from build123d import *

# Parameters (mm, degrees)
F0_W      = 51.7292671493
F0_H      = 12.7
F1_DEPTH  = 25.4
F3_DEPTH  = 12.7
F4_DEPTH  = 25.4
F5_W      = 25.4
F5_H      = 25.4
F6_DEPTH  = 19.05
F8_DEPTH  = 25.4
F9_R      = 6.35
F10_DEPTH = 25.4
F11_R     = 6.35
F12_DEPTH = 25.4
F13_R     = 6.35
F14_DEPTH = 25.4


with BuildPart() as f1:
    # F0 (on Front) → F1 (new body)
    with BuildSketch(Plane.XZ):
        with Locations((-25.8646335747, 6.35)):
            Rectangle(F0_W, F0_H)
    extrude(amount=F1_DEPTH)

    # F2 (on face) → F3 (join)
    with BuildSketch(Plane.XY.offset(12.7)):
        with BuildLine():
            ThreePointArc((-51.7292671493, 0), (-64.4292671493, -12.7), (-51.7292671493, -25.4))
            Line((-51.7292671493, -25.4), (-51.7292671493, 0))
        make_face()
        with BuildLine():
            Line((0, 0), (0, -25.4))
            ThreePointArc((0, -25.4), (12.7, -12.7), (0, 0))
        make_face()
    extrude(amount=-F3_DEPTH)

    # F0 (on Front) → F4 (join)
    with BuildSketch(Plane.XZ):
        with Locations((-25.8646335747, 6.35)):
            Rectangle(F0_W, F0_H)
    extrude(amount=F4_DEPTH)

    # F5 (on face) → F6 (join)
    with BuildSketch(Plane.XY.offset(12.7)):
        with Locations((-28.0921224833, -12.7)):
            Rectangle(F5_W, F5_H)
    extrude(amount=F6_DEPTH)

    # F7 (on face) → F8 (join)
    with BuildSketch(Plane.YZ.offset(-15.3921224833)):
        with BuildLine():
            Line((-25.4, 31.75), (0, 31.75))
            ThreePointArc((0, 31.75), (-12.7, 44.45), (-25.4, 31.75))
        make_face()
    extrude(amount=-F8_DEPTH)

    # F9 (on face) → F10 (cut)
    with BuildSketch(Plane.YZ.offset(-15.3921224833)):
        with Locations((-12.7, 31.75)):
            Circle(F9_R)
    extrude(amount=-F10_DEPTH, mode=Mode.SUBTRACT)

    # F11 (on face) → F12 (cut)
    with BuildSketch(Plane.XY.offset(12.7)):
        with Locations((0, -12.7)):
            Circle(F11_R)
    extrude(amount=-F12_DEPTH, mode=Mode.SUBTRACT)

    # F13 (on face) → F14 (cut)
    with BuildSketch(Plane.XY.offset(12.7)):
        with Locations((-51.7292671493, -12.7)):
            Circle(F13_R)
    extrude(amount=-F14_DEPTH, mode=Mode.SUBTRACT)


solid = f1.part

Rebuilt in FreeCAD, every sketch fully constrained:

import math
import FreeCAD as App
import Part
import Sketcher
from FreeCAD import Vector
Q = App.Units.Quantity


def add_polygon(sketch, points):
    """Adds a closed chain of lines whose ends are joined by coincident constraints."""
    first, n = sketch.GeometryCount, len(points)
    for a, b in zip(points, points[1:] + points[:1]):
        sketch.addGeometry(Part.LineSegment(App.Vector(*a, 0), App.Vector(*b, 0)), False)
    for i in range(n):
        sketch.addConstraint(Sketcher.Constraint("Coincident", first + i, 2, first + (i + 1) % n, 1))

doc = App.newDocument("Part")
body = doc.addObject("PartDesign::Body", "Body")

sketch1 = body.newObject("Sketcher::SketchObject", "Sketch")
sketch1.AttachmentSupport = (doc.getObject("XZ_Plane"), [""])
sketch1.MapMode = "FlatFace"
add_polygon(sketch1, [(-51.729267, 12.7), (-51.729267, 0), (0, 0), (0, 12.7)])
sketch1.addConstraint(Sketcher.Constraint("Vertical", 0))
sketch1.addConstraint(Sketcher.Constraint("Horizontal", 1))
sketch1.addConstraint(Sketcher.Constraint("Vertical", 2))
sketch1.addConstraint(Sketcher.Constraint("Horizontal", 3))
sketch1.addConstraint(Sketcher.Constraint("Coincident", 1, 2, -1, 1))
sketch1.addConstraint(Sketcher.Constraint("DistanceY", 0, 2, 0, 1, Q("0.5 in")))
sketch1.addConstraint(Sketcher.Constraint("DistanceX", 1, 1, 1, 2, 51.729267))
pad1 = body.newObject("PartDesign::Pad", "Pad")
pad1.Profile = sketch1
pad1.Length = Q("1 in")

sketch2 = body.newObject("Sketcher::SketchObject", "Sketch001")
sketch2.AttachmentSupport = (doc.getObject("XY_Plane"), [""])
sketch2.MapMode = "FlatFace"
sketch2.AttachmentOffset = App.Placement(Vector(0, 0, 0.5 * 25.4), App.Rotation())
sketch2.addGeometry(Part.ArcOfCircle(Part.Circle(Vector(-51.729267, -12.7, 0), Vector(0, 0, 1), 12.7), math.radians(90), math.radians(270)), False)
sketch2.addGeometry(Part.LineSegment(Vector(-51.729267, -25.4, 0), Vector(-51.729267, 0, 0)), False)
sketch2.addGeometry(Part.LineSegment(Vector(0, 0, 0), Vector(0, -25.4, 0)), False)
sketch2.addGeometry(Part.ArcOfCircle(Part.Circle(Vector(0, -12.7, 0), Vector(0, 0, 1), 12.7), math.radians(-90), math.radians(90)), False)
sketch2.addConstraint(Sketcher.Constraint("Coincident", 0, 1, 1, 2))
sketch2.addConstraint(Sketcher.Constraint("Coincident", 1, 1, 0, 2))
sketch2.addConstraint(Sketcher.Constraint("Coincident", 2, 1, 3, 2))
sketch2.addConstraint(Sketcher.Constraint("Coincident", 3, 1, 2, 2))
sketch2.addConstraint(Sketcher.Constraint("Vertical", 1))
sketch2.addConstraint(Sketcher.Constraint("Vertical", 2))
sketch2.addConstraint(Sketcher.Constraint("Coincident", 2, 1, -1, 1))
sketch2.addConstraint(Sketcher.Constraint("Equal", 0, 3))
sketch2.addConstraint(Sketcher.Constraint("PointOnObject", 3, 3, -2))
sketch2.addConstraint(Sketcher.Constraint("PointOnObject", 0, 1, -1))
sketch2.addConstraint(Sketcher.Constraint("Radius", 0, Q("0.5 in")))
sketch2.addConstraint(Sketcher.Constraint("DistanceX", 0, 3, -1, 1, 51.729267))
sketch2.addConstraint(Sketcher.Constraint("DistanceX", 0, 1, -1, 1, 51.729267))
pad2 = body.newObject("PartDesign::Pad", "Pad001")
pad2.Profile = sketch2
pad2.Length = Q("0.5 in")
pad2.Reversed = True

sketch3 = body.newObject("Sketcher::SketchObject", "Sketch002")
sketch3.AttachmentSupport = (doc.getObject("XZ_Plane"), [""])
sketch3.MapMode = "FlatFace"
add_polygon(sketch3, [(-51.729267, 12.7), (-51.729267, 0), (0, 0), (0, 12.7)])
sketch3.addConstraint(Sketcher.Constraint("Vertical", 0))
sketch3.addConstraint(Sketcher.Constraint("Horizontal", 1))
sketch3.addConstraint(Sketcher.Constraint("Vertical", 2))
sketch3.addConstraint(Sketcher.Constraint("Horizontal", 3))
sketch3.addConstraint(Sketcher.Constraint("Coincident", 1, 2, -1, 1))
sketch3.addConstraint(Sketcher.Constraint("DistanceY", 0, 2, 0, 1, Q("0.5 in")))
sketch3.addConstraint(Sketcher.Constraint("DistanceX", 1, 1, 1, 2, 51.729267))
pad3 = body.newObject("PartDesign::Pad", "Pad002")
pad3.Profile = sketch3
pad3.Length = Q("1 in")

sketch4 = body.newObject("Sketcher::SketchObject", "Sketch003")
sketch4.AttachmentSupport = (doc.getObject("XY_Plane"), [""])
sketch4.MapMode = "FlatFace"
sketch4.AttachmentOffset = App.Placement(Vector(0, 0, 0.5 * 25.4), App.Rotation())
add_polygon(sketch4, [(-40.792122, 0), (-40.792122, -25.4), (-15.392122, -25.4), (-15.392122, 0)])
sketch4.addConstraint(Sketcher.Constraint("Vertical", 0))
sketch4.addConstraint(Sketcher.Constraint("Horizontal", 1))
sketch4.addConstraint(Sketcher.Constraint("Vertical", 2))
sketch4.addConstraint(Sketcher.Constraint("Horizontal", 3))
sketch4.addConstraint(Sketcher.Constraint("PointOnObject", 2, 2, -1))
sketch4.addConstraint(Sketcher.Constraint("Equal", 3, 0))
sketch4.addConstraint(Sketcher.Constraint("DistanceX", 1, 1, 1, 2, Q("1 in")))
sketch4.addConstraint(Sketcher.Constraint("DistanceX", 0, 2, -1, 1, 40.792122))
pad4 = body.newObject("PartDesign::Pad", "Pad003")
pad4.Profile = sketch4
pad4.Length = Q("0.75 in")

sketch5 = body.newObject("Sketcher::SketchObject", "Sketch004")
sketch5.AttachmentSupport = (doc.getObject("YZ_Plane"), [""])
sketch5.MapMode = "FlatFace"
sketch5.AttachmentOffset = App.Placement(Vector(0, 0, -15.392122), App.Rotation())
sketch5.addGeometry(Part.LineSegment(Vector(-25.4, 31.75, 0), Vector(0, 31.75, 0)), False)
sketch5.addGeometry(Part.ArcOfCircle(Part.Circle(Vector(-12.7, 31.75, 0), Vector(0, 0, 1), 12.7), math.radians(0), math.radians(180)), False)
sketch5.addConstraint(Sketcher.Constraint("Coincident", 0, 1, 1, 2))
sketch5.addConstraint(Sketcher.Constraint("Coincident", 1, 1, 0, 2))
sketch5.addConstraint(Sketcher.Constraint("Horizontal", 0))
sketch5.addConstraint(Sketcher.Constraint("PointOnObject", 1, 1, -2))
sketch5.addConstraint(Sketcher.Constraint("Horizontal", 1, 3, 0, 1))
sketch5.addConstraint(Sketcher.Constraint("Radius", 1, Q("0.5 in")))
sketch5.addConstraint(Sketcher.Constraint("DistanceY", -1, 1, 1, 3, Q("1.25 in")))
pad5 = body.newObject("PartDesign::Pad", "Pad004")
pad5.Profile = sketch5
pad5.Length = Q("1 in")
pad5.Reversed = True

sketch6 = body.newObject("Sketcher::SketchObject", "Sketch005")
sketch6.AttachmentSupport = (doc.getObject("YZ_Plane"), [""])
sketch6.MapMode = "FlatFace"
sketch6.AttachmentOffset = App.Placement(Vector(0, 0, -15.392122), App.Rotation())
sketch6.addGeometry(Part.Circle(Vector(-12.7, 31.75, 0), Vector(0, 0, 1), 6.35), False)
sketch6.addConstraint(Sketcher.Constraint("Diameter", 0, Q("0.5 in")))
sketch6.addConstraint(Sketcher.Constraint("DistanceX", 0, 3, -1, 1, Q("0.5 in")))
sketch6.addConstraint(Sketcher.Constraint("DistanceY", -1, 1, 0, 3, Q("1.25 in")))
pocket1 = body.newObject("PartDesign::Pocket", "Pocket")
pocket1.Profile = sketch6
pocket1.Length = Q("1 in")

sketch7 = body.newObject("Sketcher::SketchObject", "Sketch006")
sketch7.AttachmentSupport = (doc.getObject("XY_Plane"), [""])
sketch7.MapMode = "FlatFace"
sketch7.AttachmentOffset = App.Placement(Vector(0, 0, 0.5 * 25.4), App.Rotation())
sketch7.addGeometry(Part.Circle(Vector(0, -12.7, 0), Vector(0, 0, 1), 6.35), False)
sketch7.addConstraint(Sketcher.Constraint("PointOnObject", 0, 3, -2))
sketch7.addConstraint(Sketcher.Constraint("Diameter", 0, Q("0.5 in")))
sketch7.addConstraint(Sketcher.Constraint("DistanceY", 0, 3, -1, 1, Q("0.5 in")))
pocket2 = body.newObject("PartDesign::Pocket", "Pocket001")
pocket2.Profile = sketch7
pocket2.Length = Q("1 in")

sketch8 = body.newObject("Sketcher::SketchObject", "Sketch007")
sketch8.AttachmentSupport = (doc.getObject("XY_Plane"), [""])
sketch8.MapMode = "FlatFace"
sketch8.AttachmentOffset = App.Placement(Vector(0, 0, 0.5 * 25.4), App.Rotation())
sketch8.addGeometry(Part.Circle(Vector(-51.729267, -12.7, 0), Vector(0, 0, 1), 6.35), False)
sketch8.addConstraint(Sketcher.Constraint("Diameter", 0, Q("0.5 in")))
sketch8.addConstraint(Sketcher.Constraint("DistanceY", 0, 3, -1, 1, Q("0.5 in")))
sketch8.addConstraint(Sketcher.Constraint("DistanceX", 0, 3, -1, 1, 51.729267))
pocket3 = body.newObject("PartDesign::Pocket", "Pocket002")
pocket3.Profile = sketch8
pocket3.Length = Q("1 in")

doc.recompute()
